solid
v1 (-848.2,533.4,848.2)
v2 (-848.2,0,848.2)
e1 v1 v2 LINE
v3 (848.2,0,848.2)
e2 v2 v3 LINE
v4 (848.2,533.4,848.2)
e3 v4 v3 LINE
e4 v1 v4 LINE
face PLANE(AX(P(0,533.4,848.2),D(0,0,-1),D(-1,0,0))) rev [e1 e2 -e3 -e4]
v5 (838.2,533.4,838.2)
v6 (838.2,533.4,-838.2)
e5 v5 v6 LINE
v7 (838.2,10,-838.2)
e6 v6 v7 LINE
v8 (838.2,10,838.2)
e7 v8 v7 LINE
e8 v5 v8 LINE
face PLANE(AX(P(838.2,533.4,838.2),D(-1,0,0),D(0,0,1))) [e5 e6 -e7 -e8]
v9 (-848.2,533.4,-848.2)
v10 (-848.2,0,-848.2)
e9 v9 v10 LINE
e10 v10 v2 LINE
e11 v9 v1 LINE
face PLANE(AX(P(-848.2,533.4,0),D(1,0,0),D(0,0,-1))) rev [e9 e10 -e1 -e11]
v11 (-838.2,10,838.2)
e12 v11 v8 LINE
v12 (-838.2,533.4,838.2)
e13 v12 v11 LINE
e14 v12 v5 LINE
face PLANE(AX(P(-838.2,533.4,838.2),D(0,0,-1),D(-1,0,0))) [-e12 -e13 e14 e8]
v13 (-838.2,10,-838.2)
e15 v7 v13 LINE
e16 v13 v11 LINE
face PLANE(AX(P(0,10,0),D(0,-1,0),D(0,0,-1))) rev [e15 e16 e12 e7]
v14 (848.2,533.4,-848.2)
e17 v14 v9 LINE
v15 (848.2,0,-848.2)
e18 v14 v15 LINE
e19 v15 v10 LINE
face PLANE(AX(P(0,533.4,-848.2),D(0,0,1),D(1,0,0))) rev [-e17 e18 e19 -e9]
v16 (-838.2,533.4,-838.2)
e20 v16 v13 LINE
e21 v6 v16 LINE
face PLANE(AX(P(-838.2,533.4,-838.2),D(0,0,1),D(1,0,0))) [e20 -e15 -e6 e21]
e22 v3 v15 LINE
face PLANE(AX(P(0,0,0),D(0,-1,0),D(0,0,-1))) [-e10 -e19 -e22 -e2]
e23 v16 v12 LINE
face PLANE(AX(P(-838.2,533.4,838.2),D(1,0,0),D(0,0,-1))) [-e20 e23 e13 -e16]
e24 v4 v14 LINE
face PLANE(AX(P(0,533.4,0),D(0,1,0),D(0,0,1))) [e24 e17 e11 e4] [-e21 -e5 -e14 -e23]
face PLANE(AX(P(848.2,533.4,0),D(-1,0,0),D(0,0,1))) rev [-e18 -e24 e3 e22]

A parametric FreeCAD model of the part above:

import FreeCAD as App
import Part
import Sketcher

V = App.Vector

doc = App.newDocument("Part")
body = doc.addObject("PartDesign::Body", "Body")

sketch1 = body.newObject("Sketcher::SketchObject", "Sketch")
sketch1.AttachmentSupport = (doc.getObject("XZ_Plane"), [""])
sketch1.MapMode = "FlatFace"
sketch1.addGeometry(Part.LineSegment(V(-838.2, -838.2, 0), V(-838.2, 838.2, 0)), False)
sketch1.addGeometry(Part.LineSegment(V(-838.2, 838.2, 0), V(838.2, 838.2, 0)), False)
sketch1.addGeometry(Part.LineSegment(V(838.2, 838.2, 0), V(838.2, -838.2, 0)), False)
sketch1.addGeometry(Part.LineSegment(V(838.2, -838.2, 0), V(-838.2, -838.2, 0)), False)
sketch1.addConstraint(Sketcher.Constraint("Coincident", 0, 2, 1, 1))
sketch1.addConstraint(Sketcher.Constraint("Coincident", 1, 2, 2, 1))
sketch1.addConstraint(Sketcher.Constraint("Coincident", 2, 2, 3, 1))
sketch1.addConstraint(Sketcher.Constraint("Coincident", 3, 2, 0, 1))
sketch1.addConstraint(Sketcher.Constraint("Vertical", 0))
sketch1.addConstraint(Sketcher.Constraint("Horizontal", 1))
sketch1.addConstraint(Sketcher.Constraint("Vertical", 2))
sketch1.addConstraint(Sketcher.Constraint("Horizontal", 3))
sketch1.addConstraint(Sketcher.Constraint("Symmetric", 0, 2, 2, 2, -1, 1))
sketch1.addConstraint(Sketcher.Constraint("Equal", 3, 0))
sketch1.addConstraint(Sketcher.Constraint("DistanceX", 1, 1, 1, 2, 1676.4))
pad1 = body.newObject("PartDesign::Pad", "Pad")
pad1.Profile = sketch1
pad1.Length = 10
pad1.Reversed = True

sketch2 = body.newObject("Sketcher::SketchObject", "Sketch001")
sketch2.AttachmentSupport = (doc.getObject("XZ_Plane"), [""])
sketch2.MapMode = "FlatFace"
sketch2.addGeometry(Part.LineSegment(V(-848.2, -848.2, 0), V(-848.2, 848.2, 0)), False)
sketch2.addGeometry(Part.LineSegment(V(-848.2, 848.2, 0), V(848.2, 848.2, 0)), False)
sketch2.addGeometry(Part.LineSegment(V(848.2, 848.2, 0), V(848.2, -848.2, 0)), False)
sketch2.addGeometry(Part.LineSegment(V(848.2, -848.2, 0), V(-848.2, -848.2, 0)), False)
sketch2.addGeometry(Part.LineSegment(V(838.2, 838.2, 0), V(-838.2, 838.2, 0)), False)
sketch2.addGeometry(Part.LineSegment(V(-838.2, 838.2, 0), V(-838.2, -838.2, 0)), False)
sketch2.addGeometry(Part.LineSegment(V(-838.2, -838.2, 0), V(838.2, -838.2, 0)), False)
sketch2.addGeometry(Part.LineSegment(V(838.2, -838.2, 0), V(838.2, 838.2, 0)), False)
sketch2.addConstraint(Sketcher.Constraint("Coincident", 0, 2, 1, 1))
sketch2.addConstraint(Sketcher.Constraint("Coincident", 1, 2, 2, 1))
sketch2.addConstraint(Sketcher.Constraint("Coincident", 2, 2, 3, 1))
sketch2.addConstraint(Sketcher.Constraint("Coincident", 3, 2, 0, 1))
sketch2.addConstraint(Sketcher.Constraint("Coincident", 4, 2, 5, 1))
sketch2.addConstraint(Sketcher.Constraint("Coincident", 5, 2, 6, 1))
sketch2.addConstraint(Sketcher.Constraint("Coincident", 6, 2, 7, 1))
sketch2.addConstraint(Sketcher.Constraint("Coincident", 7, 2, 4, 1))
sketch2.addConstraint(Sketcher.Constraint("Vertical", 0))
sketch2.addConstraint(Sketcher.Constraint("Horizontal", 1))
sketch2.addConstraint(Sketcher.Constraint("Vertical", 2))
sketch2.addConstraint(Sketcher.Constraint("Horizontal", 3))
sketch2.addConstraint(Sketcher.Constraint("Horizontal", 4))
sketch2.addConstraint(Sketcher.Constraint("Vertical", 5))
sketch2.addConstraint(Sketcher.Constraint("Horizontal", 6))
sketch2.addConstraint(Sketcher.Constraint("Vertical", 7))
sketch2.addConstraint(Sketcher.Constraint("Symmetric", 0, 2, 2, 2, -1, 1))
sketch2.addConstraint(Sketcher.Constraint("Symmetric", 4, 2, 6, 2, -1, 1))
sketch2.addConstraint(Sketcher.Constraint("Equal", 3, 0))
sketch2.addConstraint(Sketcher.Constraint("Equal", 6, 5))
sketch2.addConstraint(Sketcher.Constraint("DistanceX", 1, 1, 1, 2, 1696.4))
sketch2.addConstraint(Sketcher.Constraint("DistanceX", 4, 2, 4, 1, 1676.4))
pad2 = body.newObject("PartDesign::Pad", "Pad001")
pad2.Profile = sketch2
pad2.Length = 533.4
pad2.Reversed = True

doc.recompute()
